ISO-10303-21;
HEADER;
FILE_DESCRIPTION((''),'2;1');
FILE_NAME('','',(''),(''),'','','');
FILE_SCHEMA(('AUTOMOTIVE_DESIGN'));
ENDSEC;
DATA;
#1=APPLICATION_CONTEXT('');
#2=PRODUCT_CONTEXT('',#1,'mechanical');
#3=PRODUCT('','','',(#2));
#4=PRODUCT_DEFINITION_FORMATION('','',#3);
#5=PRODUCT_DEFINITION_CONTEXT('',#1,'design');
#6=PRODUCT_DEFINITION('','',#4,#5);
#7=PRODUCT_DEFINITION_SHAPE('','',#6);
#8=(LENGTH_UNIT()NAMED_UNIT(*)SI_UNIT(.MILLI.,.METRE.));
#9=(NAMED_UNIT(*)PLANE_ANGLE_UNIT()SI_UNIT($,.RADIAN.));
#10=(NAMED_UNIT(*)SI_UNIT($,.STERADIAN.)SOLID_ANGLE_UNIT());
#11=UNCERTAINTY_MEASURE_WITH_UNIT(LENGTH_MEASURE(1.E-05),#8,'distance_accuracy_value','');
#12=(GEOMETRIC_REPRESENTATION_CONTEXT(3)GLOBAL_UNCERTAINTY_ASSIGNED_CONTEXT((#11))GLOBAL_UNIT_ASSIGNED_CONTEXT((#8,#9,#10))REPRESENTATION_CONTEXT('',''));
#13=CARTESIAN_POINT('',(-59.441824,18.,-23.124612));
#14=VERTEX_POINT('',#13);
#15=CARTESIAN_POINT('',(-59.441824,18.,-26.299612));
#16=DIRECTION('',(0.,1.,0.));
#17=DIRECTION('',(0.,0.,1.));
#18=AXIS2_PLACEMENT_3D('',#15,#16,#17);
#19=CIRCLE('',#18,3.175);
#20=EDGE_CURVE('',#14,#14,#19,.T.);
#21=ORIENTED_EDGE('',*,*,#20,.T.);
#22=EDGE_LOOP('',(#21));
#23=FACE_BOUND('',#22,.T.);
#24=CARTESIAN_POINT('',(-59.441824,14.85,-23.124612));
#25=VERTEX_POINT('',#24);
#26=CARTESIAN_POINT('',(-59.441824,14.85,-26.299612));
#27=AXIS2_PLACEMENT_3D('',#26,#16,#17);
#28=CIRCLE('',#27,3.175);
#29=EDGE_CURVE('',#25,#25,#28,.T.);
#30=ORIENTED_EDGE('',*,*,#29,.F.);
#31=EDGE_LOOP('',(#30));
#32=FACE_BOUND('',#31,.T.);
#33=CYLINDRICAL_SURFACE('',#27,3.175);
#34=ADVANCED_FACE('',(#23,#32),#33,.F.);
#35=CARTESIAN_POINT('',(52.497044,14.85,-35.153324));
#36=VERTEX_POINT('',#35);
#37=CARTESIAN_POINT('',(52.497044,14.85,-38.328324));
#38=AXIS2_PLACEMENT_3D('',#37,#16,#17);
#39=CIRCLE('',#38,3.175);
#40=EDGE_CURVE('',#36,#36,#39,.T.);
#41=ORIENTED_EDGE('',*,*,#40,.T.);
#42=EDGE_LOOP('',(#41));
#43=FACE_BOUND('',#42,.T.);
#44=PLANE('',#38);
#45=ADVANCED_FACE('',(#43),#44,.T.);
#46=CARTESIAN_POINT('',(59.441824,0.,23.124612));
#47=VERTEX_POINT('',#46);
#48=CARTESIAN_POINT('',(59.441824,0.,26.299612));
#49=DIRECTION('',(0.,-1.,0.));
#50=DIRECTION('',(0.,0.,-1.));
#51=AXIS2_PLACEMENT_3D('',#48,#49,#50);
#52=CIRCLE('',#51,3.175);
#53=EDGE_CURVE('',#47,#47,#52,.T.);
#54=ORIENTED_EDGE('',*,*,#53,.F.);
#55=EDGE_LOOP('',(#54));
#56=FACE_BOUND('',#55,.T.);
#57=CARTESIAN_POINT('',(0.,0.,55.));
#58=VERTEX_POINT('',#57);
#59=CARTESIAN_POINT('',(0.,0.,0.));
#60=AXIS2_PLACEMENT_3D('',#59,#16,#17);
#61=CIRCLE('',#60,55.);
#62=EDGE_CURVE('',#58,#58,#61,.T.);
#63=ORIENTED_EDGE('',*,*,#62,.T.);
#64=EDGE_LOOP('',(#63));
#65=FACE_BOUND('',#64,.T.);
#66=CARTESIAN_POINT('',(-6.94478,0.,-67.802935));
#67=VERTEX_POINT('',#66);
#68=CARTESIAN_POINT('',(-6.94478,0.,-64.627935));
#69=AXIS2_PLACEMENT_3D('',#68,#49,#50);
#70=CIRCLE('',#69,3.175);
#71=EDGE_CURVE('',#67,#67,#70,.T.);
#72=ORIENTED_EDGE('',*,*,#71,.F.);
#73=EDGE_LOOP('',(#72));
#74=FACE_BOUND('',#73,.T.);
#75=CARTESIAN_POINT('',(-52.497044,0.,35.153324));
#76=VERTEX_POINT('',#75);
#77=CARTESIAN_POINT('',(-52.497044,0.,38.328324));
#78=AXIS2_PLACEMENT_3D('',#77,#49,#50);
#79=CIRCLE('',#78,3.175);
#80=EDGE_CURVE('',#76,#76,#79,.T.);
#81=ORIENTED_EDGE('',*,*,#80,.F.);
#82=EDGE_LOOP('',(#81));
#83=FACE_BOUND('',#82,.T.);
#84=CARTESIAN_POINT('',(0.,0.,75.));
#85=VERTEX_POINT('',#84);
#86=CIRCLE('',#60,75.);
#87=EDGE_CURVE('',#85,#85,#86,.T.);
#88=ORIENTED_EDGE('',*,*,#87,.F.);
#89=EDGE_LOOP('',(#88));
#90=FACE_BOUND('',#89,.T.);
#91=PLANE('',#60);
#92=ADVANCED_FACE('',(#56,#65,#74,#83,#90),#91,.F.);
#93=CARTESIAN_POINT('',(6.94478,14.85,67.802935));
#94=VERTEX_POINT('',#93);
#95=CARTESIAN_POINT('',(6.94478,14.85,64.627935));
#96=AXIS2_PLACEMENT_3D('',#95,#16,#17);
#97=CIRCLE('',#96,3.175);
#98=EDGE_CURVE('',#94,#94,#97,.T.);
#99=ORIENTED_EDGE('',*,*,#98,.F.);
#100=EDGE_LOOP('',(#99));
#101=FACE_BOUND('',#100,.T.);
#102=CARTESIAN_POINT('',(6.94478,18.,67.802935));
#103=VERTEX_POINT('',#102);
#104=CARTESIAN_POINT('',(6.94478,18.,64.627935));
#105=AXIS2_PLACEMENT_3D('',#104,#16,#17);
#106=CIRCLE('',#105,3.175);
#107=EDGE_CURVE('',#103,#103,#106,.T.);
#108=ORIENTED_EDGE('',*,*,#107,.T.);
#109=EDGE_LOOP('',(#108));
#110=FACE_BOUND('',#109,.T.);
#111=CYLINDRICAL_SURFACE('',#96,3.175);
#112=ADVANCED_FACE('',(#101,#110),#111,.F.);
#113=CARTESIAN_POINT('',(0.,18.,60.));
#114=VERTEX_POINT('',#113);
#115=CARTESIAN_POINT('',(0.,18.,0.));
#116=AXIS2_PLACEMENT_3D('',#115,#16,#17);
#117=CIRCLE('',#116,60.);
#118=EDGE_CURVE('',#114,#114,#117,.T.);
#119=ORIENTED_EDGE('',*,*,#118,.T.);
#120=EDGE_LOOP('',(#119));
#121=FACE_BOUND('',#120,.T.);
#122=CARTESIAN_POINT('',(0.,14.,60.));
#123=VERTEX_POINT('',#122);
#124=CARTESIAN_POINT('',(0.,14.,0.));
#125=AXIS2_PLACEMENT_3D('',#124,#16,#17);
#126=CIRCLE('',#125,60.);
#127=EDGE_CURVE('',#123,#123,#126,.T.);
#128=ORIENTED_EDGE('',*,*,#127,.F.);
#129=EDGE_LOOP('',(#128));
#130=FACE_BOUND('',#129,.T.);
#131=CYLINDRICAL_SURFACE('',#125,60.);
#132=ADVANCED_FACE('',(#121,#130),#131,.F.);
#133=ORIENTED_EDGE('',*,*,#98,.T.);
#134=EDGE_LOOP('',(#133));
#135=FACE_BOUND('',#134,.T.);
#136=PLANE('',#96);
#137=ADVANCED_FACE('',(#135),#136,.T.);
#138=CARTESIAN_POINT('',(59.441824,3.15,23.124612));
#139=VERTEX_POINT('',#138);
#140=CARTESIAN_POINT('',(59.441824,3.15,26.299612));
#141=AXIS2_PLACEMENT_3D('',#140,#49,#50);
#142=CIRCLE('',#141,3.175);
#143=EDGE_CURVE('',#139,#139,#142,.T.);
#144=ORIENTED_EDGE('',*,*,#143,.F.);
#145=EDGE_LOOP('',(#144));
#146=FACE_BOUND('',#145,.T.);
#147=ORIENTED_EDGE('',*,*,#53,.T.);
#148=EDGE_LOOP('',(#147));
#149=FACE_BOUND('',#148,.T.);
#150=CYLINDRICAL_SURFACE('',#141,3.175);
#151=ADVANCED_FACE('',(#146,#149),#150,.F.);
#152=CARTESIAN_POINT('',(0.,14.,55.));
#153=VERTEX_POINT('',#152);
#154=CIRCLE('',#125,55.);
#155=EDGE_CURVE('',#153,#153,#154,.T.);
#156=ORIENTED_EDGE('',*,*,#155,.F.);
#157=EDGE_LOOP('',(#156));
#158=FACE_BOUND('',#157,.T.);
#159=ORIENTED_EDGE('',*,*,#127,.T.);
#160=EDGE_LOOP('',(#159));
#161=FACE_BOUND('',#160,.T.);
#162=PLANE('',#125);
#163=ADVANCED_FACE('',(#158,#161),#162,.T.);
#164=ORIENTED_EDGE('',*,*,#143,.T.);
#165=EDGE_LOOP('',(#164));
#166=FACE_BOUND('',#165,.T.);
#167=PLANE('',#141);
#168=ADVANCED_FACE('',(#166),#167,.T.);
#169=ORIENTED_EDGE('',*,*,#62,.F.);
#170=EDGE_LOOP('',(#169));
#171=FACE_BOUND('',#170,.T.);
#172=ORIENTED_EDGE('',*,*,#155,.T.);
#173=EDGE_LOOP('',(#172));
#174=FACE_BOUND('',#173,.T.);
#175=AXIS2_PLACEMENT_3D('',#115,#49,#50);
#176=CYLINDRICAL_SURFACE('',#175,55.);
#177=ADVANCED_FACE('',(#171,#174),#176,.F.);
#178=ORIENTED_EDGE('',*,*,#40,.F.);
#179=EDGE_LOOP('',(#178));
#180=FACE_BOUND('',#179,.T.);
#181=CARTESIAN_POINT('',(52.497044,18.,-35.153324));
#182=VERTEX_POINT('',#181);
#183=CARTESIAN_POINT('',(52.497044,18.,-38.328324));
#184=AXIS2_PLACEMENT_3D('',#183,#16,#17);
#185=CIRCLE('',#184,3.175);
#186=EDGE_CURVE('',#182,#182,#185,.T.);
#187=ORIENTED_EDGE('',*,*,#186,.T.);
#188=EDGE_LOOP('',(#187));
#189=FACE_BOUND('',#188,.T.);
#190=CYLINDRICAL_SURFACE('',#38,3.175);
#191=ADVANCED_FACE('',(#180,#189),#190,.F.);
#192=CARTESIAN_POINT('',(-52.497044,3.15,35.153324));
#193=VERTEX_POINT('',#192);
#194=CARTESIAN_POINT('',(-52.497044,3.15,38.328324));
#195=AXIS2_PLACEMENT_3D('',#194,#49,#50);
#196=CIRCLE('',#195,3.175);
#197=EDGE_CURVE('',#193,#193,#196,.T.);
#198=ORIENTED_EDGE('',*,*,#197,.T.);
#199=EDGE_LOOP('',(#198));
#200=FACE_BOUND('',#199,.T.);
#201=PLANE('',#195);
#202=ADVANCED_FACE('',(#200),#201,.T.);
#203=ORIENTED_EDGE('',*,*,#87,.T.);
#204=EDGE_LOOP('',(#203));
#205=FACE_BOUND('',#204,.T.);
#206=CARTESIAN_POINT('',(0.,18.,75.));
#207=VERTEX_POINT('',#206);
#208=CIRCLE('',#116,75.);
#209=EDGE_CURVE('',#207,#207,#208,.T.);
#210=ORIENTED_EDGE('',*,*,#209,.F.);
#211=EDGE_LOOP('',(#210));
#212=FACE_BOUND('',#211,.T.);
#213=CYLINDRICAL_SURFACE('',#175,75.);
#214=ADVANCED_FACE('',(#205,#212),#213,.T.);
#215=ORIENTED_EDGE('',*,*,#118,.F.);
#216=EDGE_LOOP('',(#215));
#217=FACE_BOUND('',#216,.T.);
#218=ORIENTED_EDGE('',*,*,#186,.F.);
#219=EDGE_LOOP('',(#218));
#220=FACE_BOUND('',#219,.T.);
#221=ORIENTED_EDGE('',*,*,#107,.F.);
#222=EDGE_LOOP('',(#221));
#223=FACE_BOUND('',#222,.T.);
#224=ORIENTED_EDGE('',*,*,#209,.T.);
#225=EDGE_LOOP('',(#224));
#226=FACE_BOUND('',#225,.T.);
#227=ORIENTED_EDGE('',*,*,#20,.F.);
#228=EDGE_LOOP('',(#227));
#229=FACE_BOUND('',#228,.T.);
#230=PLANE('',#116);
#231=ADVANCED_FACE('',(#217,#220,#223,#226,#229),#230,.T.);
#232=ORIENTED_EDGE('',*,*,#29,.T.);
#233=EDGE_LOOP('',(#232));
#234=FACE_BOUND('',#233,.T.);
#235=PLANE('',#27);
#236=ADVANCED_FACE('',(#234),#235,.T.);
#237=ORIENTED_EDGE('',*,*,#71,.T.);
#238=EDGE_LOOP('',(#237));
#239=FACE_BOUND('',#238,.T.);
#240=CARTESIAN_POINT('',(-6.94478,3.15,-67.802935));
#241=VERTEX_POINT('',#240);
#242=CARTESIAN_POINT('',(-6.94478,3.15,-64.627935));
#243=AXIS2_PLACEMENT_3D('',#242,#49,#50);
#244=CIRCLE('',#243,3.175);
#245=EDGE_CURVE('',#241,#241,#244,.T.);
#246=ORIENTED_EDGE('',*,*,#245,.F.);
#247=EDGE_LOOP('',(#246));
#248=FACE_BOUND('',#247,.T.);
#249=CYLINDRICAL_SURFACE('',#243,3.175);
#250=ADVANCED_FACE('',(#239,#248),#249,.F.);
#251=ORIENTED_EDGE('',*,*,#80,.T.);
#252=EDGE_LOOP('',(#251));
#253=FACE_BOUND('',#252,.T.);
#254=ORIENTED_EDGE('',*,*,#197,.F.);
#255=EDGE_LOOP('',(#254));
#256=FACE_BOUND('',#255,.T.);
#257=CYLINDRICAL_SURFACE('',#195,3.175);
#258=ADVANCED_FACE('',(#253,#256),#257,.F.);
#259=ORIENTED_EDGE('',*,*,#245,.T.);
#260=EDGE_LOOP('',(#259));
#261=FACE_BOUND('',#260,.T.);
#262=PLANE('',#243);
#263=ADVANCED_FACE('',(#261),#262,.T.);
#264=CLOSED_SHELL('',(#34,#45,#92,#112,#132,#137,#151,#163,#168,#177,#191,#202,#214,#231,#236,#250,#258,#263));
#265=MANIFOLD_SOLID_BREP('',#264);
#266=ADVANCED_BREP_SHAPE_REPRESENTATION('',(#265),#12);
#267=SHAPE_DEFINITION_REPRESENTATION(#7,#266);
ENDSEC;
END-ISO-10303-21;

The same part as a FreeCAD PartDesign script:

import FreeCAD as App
import Part
import Sketcher

V = App.Vector

doc = App.newDocument("Part")
body = doc.addObject("PartDesign::Body", "Body")

# Sketch on XZ plane
sketch1 = body.newObject("Sketcher::SketchObject", "Sketch")
sketch1.AttachmentSupport = (doc.getObject("XZ_Plane"), [""])
sketch1.MapMode = "FlatFace"
sketch1.addGeometry([
    Part.Circle(V(0, 0, 0), V(0, 0, 1), 75),
    Part.Circle(V(0, 0, 0), V(0, 0, 1), 55),
], False)
sketch1.addConstraint([
    Sketcher.Constraint("Coincident", 0, 3, -1, 1),
    Sketcher.Constraint("Coincident", 1, 3, -1, 1),
    Sketcher.Constraint("Diameter", 0, 150.0),
    Sketcher.Constraint("Diameter", 1, 110.0),
])
pad1 = body.newObject("PartDesign::Pad", "Pad")
pad1.Profile = sketch1
pad1.Length = 18
pad1.Reversed = True

# Sketch on XZ plane
sketch2 = body.newObject("Sketcher::SketchObject", "Sketch001")
sketch2.AttachmentSupport = (doc.getObject("XZ_Plane"), [""])
sketch2.MapMode = "FlatFace"
sketch2.AttachmentOffset = App.Placement(V(0, 0, -18), App.Rotation())
sketch2.addGeometry([
    Part.Circle(V(0, 0, 0), V(0, 0, 1), 60),
    Part.Circle(V(0, 0, 0), V(0, 0, 1), 55),
], False)
sketch2.addConstraint([
    Sketcher.Constraint("Coincident", 0, 3, -1, 1),
    Sketcher.Constraint("Coincident", 1, 3, -1, 1),
    Sketcher.Constraint("Diameter", 0, 120.0),
    Sketcher.Constraint("Diameter", 1, 110.0),
])
pocket1 = body.newObject("PartDesign::Pocket", "Pocket")
pocket1.Profile = sketch2
pocket1.Length = 4
pocket1.Reversed = True

# Sketch on XZ plane
sketch3 = body.newObject("Sketcher::SketchObject", "Sketch002")
sketch3.AttachmentSupport = (doc.getObject("XZ_Plane"), [""])
sketch3.MapMode = "FlatFace"
sketch3.AttachmentOffset = App.Placement(V(0, 0, -18), App.Rotation())
sketch3.addGeometry([
    Part.Circle(V(-59.4, -26.3, 0), V(0, 0, 1), 3.2),
    Part.Circle(V(52.5, -38.3, 0), V(0, 0, 1), 3.2),
    Part.Circle(V(6.9, 64.6, 0), V(0, 0, 1), 3.2),
], False)
sketch3.addConstraint([
    Sketcher.Constraint("Equal", 0, 1),
    Sketcher.Constraint("Equal", 1, 2),
    Sketcher.Constraint("Diameter", 0, 6.35),
    Sketcher.Constraint("DistanceY", 0, 3, -1, 1, 26.299612),
    Sketcher.Constraint("DistanceX", -1, 1, 2, 3, 6.94478),
    Sketcher.Constraint("DistanceY", 1, 3, 0, 3, 12.028712),
    Sketcher.Constraint("DistanceY", 1, 3, 2, 3, 102.956259),
    Sketcher.Constraint("DistanceX", 0, 3, -1, 1, 59.441824),
    Sketcher.Constraint("DistanceX", -1, 1, 1, 3, 52.497044),
])
pocket2 = body.newObject("PartDesign::Pocket", "Pocket001")
pocket2.Profile = sketch3
pocket2.Length = 3.15
pocket2.Reversed = True

# Sketch on XZ plane
sketch4 = body.newObject("Sketcher::SketchObject", "Sketch003")
sketch4.AttachmentSupport = (doc.getObject("XZ_Plane"), [""])
sketch4.MapMode = "FlatFace"
sketch4.addGeometry([
    Part.Circle(V(59.4, 26.3, 0), V(0, 0, 1), 3.2),
    Part.Circle(V(-6.9, -64.6, 0), V(0, 0, 1), 3.2),
    Part.Circle(V(-52.5, 38.3, 0), V(0, 0, 1), 3.2),
], False)
sketch4.addConstraint([
    Sketcher.Constraint("Equal", 0, 1),
    Sketcher.Constraint("Equal", 1, 2),
    Sketcher.Constraint("Diameter", 0, 6.35),
    Sketcher.Constraint("DistanceY", -1, 1, 0, 3, 26.299612),
    Sketcher.Constraint("DistanceX", 1, 3, -1, 1, 6.94478),
    Sketcher.Constraint("DistanceY", 0, 3, 2, 3, 12.028712),
    Sketcher.Constraint("DistanceY", 1, 3, 2, 3, 102.956259),
    Sketcher.Constraint("DistanceX", -1, 1, 0, 3, 59.441824),
    Sketcher.Constraint("DistanceX", 2, 3, -1, 1, 52.497044),
])
pocket3 = body.newObject("PartDesign::Pocket", "Pocket002")
pocket3.Profile = sketch4
pocket3.Length = 3.15

doc.recompute()
